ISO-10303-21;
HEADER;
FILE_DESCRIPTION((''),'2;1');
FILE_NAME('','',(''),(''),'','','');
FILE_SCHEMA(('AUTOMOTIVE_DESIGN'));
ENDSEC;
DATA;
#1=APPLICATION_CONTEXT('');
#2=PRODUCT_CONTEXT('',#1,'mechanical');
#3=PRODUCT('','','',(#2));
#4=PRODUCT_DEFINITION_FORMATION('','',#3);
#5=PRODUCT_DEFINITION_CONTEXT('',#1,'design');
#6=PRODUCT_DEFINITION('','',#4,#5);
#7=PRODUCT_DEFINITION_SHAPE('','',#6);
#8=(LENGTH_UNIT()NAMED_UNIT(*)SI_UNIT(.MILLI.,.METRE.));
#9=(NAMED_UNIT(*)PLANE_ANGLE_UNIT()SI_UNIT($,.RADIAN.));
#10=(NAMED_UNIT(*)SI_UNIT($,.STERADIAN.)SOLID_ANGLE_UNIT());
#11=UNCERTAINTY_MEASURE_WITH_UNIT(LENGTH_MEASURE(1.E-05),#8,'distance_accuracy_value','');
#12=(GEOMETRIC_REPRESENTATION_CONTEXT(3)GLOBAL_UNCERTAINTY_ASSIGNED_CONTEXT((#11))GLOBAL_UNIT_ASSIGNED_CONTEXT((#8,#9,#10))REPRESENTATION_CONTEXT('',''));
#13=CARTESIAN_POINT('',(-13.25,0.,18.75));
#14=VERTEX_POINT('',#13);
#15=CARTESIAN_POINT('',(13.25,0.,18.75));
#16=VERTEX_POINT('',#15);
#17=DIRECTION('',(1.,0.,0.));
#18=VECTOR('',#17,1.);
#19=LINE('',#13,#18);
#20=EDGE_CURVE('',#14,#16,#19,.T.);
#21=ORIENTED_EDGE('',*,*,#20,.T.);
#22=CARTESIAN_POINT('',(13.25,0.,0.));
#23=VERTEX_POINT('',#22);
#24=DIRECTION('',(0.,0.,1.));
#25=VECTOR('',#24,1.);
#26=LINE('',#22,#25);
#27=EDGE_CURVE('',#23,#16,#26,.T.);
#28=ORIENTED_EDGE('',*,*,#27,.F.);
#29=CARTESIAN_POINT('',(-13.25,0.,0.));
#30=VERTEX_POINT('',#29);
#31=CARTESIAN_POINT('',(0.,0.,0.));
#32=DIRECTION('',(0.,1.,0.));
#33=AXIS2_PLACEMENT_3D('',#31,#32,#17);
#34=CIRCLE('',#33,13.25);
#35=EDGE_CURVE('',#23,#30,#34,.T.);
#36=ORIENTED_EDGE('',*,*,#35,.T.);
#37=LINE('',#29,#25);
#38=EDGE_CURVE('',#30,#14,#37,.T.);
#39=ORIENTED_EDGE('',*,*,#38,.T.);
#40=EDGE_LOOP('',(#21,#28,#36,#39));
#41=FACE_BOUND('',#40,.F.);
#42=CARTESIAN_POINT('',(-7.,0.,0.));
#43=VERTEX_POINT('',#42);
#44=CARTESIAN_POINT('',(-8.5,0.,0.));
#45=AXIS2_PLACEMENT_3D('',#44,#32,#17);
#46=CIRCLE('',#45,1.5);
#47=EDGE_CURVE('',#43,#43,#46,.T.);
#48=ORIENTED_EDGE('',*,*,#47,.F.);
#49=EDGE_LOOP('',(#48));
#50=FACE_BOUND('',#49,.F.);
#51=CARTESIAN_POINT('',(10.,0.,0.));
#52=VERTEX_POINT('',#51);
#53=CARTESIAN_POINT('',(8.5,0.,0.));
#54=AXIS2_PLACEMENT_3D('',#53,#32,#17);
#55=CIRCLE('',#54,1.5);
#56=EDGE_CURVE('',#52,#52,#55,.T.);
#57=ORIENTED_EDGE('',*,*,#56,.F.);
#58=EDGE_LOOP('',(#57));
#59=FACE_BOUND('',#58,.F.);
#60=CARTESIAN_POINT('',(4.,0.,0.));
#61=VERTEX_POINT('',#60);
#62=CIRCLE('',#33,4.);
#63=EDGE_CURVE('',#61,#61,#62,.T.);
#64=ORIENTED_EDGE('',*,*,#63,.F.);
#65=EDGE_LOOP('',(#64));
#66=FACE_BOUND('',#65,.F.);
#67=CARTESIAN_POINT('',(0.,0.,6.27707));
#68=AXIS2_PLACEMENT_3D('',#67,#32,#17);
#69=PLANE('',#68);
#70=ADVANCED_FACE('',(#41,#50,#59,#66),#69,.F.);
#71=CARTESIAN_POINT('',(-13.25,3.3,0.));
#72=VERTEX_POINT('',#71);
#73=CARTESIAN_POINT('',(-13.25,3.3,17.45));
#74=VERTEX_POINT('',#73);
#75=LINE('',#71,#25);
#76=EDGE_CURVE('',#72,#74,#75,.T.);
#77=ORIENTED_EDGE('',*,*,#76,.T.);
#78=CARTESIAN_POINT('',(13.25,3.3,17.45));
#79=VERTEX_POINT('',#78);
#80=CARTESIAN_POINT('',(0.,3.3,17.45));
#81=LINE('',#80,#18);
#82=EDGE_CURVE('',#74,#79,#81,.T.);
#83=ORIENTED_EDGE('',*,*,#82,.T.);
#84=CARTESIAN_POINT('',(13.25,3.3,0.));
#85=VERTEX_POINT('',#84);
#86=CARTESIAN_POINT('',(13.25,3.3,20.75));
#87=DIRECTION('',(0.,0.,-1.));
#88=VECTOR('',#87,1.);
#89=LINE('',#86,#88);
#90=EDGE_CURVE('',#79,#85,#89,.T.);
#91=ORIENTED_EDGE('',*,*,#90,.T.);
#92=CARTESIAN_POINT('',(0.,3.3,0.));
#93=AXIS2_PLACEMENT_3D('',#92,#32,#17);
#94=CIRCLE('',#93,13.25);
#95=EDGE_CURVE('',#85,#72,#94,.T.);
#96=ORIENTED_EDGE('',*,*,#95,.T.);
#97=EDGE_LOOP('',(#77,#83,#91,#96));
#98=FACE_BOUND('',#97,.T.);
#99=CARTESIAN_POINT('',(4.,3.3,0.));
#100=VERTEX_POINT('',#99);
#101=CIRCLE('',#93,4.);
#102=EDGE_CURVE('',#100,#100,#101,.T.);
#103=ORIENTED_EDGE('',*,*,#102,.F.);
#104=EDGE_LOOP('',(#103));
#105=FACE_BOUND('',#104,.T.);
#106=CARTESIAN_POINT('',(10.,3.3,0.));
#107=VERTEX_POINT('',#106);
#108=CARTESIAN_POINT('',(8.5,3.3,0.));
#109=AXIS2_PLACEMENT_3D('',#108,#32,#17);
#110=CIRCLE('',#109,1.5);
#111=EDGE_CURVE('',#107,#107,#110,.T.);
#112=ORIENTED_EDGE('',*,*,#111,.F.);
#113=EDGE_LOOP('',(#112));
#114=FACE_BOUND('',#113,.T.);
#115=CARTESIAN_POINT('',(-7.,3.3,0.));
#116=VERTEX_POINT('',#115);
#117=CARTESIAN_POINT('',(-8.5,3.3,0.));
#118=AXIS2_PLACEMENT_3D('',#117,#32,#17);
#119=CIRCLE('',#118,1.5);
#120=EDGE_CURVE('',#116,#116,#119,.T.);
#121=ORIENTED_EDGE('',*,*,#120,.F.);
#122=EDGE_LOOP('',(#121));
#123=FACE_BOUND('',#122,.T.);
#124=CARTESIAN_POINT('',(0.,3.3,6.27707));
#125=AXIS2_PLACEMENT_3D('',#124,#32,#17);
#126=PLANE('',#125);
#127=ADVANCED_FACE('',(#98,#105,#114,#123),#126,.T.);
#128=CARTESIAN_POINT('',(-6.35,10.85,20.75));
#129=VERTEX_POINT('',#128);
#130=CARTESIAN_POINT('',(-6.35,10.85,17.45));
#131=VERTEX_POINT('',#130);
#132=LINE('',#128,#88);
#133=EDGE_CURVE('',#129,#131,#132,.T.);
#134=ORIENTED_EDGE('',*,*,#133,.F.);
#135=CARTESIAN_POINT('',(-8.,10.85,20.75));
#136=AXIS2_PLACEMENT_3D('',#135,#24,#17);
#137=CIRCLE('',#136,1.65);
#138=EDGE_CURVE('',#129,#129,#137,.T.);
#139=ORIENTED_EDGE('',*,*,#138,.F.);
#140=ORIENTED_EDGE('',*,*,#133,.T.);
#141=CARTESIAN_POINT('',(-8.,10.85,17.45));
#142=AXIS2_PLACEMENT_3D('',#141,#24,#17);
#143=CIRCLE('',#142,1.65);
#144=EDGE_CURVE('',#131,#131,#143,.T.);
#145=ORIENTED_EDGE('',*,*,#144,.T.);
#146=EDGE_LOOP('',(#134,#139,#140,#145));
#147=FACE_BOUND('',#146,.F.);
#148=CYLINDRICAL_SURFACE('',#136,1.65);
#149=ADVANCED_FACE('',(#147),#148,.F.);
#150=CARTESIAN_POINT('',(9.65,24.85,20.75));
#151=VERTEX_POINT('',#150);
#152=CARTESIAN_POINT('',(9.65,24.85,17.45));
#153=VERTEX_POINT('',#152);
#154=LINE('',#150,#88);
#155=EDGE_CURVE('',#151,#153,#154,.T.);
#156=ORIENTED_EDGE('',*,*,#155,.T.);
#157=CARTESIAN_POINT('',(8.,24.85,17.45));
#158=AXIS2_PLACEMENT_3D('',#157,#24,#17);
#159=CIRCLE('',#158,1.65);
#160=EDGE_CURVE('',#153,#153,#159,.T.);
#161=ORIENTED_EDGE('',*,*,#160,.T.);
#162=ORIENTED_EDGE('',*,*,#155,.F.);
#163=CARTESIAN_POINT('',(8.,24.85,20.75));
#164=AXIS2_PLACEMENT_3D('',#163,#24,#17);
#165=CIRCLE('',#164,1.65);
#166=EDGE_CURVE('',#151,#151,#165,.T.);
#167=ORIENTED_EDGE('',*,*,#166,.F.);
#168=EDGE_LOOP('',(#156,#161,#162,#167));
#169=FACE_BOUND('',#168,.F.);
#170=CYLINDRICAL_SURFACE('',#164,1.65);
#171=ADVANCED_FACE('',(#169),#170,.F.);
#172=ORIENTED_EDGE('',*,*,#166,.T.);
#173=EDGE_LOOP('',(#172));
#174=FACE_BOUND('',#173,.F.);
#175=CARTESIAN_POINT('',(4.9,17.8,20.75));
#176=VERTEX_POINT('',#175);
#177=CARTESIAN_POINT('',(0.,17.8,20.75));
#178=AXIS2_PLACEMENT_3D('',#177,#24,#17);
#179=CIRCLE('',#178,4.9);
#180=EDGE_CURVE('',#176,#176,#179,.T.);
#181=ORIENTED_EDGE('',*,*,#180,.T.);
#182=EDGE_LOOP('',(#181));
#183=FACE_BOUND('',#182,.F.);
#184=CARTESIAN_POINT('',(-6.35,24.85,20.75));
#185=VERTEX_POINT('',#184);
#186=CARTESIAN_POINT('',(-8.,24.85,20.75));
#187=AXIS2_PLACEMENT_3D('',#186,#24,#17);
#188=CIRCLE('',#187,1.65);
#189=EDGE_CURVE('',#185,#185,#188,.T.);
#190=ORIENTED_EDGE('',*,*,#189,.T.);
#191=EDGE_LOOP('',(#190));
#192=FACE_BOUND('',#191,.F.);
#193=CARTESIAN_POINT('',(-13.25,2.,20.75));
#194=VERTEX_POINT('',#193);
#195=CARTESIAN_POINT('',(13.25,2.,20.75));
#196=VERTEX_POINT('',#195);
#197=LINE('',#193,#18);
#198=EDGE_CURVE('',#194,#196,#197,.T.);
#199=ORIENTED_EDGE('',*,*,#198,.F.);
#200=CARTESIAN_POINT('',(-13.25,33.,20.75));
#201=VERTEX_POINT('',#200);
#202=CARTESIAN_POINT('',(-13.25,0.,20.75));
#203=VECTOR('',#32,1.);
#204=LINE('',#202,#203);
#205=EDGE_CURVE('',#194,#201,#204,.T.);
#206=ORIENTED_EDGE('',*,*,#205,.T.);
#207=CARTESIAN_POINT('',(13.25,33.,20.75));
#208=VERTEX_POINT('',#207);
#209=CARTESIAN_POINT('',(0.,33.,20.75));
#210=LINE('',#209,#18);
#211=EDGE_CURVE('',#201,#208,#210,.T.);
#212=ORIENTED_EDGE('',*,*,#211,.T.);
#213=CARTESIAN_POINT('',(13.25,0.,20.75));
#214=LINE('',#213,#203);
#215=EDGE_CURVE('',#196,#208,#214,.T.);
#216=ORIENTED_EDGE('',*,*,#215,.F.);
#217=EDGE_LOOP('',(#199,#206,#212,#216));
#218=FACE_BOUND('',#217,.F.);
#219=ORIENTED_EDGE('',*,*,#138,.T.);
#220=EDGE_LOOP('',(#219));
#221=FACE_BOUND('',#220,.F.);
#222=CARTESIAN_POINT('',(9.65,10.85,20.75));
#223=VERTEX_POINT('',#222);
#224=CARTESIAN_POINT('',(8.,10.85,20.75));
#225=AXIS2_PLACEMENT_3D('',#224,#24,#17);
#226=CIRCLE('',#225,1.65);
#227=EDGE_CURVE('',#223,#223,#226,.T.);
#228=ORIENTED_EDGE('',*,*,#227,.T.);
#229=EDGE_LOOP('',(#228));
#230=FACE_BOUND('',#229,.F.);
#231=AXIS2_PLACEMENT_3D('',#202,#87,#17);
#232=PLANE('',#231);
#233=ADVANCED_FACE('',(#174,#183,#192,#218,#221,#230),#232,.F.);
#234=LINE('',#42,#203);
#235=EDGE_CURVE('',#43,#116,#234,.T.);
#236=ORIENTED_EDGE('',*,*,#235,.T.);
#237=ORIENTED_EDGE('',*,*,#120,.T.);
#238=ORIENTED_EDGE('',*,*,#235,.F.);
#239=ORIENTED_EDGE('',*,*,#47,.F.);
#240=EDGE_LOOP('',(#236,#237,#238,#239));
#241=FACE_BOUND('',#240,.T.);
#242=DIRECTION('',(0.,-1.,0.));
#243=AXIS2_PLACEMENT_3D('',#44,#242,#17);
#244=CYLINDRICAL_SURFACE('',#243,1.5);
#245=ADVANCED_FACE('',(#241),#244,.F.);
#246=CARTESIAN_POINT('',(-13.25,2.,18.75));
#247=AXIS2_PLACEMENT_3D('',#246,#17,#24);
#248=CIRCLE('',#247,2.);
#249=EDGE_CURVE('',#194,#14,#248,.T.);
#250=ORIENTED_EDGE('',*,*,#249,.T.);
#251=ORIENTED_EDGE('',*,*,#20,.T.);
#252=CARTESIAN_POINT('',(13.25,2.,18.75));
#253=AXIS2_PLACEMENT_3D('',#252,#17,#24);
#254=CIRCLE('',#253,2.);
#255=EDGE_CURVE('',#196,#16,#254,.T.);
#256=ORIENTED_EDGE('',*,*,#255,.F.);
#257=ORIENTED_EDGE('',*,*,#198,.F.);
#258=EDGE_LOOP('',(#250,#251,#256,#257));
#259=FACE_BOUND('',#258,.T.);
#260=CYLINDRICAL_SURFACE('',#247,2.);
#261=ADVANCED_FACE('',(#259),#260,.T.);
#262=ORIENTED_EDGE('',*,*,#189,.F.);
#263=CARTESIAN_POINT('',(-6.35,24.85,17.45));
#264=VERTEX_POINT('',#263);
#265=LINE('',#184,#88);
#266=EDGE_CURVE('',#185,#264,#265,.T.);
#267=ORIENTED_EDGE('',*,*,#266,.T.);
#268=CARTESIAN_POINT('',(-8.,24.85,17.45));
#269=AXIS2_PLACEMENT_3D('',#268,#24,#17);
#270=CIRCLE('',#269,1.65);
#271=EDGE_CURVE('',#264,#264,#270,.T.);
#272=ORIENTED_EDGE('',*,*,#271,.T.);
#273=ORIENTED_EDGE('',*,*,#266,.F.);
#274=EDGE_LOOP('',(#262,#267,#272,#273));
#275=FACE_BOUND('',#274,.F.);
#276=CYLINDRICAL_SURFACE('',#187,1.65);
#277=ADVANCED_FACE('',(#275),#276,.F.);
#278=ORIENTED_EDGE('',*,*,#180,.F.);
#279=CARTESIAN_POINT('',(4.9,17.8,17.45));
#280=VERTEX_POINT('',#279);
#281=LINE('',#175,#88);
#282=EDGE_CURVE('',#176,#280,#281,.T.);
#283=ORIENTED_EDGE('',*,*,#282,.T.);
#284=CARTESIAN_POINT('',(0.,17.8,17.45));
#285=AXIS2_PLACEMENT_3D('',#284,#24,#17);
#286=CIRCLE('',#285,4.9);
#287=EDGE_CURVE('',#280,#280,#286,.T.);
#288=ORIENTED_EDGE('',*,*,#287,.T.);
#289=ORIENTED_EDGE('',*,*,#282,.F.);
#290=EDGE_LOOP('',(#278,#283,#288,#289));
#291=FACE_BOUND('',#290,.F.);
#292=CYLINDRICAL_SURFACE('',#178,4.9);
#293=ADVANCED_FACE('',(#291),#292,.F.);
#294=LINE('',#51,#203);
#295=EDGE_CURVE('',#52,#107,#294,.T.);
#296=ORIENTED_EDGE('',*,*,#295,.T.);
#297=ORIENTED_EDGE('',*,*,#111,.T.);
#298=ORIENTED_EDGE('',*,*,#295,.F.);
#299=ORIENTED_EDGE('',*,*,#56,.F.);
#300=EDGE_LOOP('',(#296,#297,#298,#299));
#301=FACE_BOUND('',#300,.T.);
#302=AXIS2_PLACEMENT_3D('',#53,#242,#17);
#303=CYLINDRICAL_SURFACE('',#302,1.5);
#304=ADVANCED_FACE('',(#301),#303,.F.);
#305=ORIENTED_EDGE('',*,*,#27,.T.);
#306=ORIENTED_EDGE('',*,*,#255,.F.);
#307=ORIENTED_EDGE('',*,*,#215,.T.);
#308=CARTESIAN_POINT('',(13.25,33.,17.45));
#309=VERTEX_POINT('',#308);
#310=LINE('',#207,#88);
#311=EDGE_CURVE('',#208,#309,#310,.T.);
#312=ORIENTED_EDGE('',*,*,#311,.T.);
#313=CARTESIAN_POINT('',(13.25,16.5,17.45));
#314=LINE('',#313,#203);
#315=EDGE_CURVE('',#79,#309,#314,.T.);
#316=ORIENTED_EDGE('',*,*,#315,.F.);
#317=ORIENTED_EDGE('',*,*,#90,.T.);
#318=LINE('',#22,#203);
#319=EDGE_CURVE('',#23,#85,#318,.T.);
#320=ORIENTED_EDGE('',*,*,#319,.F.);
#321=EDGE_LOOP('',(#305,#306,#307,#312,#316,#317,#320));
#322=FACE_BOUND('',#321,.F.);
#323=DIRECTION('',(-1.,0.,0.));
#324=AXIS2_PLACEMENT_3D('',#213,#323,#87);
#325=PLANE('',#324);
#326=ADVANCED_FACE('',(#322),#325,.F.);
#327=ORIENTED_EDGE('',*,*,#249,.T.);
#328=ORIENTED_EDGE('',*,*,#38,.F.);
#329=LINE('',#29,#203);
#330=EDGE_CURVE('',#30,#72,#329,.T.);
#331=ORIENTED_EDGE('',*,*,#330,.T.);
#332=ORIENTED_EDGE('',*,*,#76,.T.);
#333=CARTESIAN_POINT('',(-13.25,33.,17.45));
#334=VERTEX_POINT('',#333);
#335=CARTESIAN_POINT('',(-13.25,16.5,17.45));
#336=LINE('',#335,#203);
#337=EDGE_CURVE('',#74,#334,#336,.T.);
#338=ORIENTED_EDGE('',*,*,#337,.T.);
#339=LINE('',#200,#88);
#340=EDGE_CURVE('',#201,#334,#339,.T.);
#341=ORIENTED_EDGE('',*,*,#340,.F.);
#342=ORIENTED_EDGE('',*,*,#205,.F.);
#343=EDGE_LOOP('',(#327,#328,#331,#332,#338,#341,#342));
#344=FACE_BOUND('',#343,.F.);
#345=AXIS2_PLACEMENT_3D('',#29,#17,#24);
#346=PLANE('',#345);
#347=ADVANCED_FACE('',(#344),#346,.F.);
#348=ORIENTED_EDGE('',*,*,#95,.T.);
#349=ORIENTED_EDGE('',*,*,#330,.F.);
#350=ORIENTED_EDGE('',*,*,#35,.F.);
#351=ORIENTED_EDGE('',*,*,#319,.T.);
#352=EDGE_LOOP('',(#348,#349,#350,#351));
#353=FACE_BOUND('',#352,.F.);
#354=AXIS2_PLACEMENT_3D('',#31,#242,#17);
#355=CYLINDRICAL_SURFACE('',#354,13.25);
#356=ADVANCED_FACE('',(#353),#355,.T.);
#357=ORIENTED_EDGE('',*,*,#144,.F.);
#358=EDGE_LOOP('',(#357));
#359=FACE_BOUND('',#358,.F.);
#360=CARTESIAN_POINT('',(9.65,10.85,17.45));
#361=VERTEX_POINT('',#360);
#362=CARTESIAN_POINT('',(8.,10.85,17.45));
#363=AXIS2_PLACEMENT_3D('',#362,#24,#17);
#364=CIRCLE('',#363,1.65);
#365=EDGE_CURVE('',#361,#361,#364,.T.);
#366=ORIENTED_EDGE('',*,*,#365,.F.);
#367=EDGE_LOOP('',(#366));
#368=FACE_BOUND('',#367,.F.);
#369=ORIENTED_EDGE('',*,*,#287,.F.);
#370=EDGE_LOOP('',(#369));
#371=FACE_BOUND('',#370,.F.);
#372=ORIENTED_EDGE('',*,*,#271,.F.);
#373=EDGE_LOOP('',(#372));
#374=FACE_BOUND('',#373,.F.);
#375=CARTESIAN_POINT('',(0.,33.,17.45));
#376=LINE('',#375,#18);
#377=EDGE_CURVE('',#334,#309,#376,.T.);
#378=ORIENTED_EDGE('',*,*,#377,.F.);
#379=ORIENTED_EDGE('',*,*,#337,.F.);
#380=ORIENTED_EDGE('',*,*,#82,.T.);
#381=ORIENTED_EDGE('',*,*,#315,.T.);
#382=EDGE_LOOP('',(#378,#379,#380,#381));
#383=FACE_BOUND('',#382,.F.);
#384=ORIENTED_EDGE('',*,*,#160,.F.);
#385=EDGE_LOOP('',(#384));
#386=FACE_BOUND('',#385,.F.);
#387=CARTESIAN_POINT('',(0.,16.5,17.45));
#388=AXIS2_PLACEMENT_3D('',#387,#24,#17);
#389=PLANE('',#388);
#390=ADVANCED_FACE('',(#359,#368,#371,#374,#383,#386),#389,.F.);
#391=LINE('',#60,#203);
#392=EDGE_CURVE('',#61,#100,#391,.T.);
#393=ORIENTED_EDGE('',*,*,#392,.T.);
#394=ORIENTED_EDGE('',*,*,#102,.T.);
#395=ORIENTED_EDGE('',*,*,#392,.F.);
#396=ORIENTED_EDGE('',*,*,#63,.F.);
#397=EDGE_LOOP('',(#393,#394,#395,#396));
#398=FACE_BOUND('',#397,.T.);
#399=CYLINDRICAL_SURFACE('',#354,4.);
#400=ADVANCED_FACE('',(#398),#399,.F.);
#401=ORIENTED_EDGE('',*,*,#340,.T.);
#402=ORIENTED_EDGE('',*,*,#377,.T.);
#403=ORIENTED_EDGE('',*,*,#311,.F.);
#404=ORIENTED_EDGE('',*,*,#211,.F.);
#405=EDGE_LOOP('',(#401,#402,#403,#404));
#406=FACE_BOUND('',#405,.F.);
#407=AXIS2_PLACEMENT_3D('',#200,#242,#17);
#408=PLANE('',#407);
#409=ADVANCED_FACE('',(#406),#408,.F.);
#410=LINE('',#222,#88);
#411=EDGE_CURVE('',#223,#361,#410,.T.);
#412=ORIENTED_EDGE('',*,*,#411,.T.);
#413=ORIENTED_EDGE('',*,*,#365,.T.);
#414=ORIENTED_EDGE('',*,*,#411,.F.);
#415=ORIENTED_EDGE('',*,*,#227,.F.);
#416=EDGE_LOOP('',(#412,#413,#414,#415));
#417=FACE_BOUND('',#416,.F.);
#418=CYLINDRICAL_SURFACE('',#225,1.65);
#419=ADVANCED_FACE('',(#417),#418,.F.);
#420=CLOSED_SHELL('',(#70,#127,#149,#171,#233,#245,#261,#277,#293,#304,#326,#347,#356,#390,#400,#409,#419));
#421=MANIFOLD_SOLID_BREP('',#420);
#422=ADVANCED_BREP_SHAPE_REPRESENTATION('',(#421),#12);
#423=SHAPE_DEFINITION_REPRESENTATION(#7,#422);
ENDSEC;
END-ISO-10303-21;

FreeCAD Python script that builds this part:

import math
import FreeCAD as App
import Part
import Sketcher


def edges_at(feature, points):
    """Names of the edges that pass closest to the given points."""
    edges = feature.Shape.Edges
    near = lambda p: min(range(len(edges)), key=lambda i: edges[i].distToShape(Part.Vertex(*p))[0])
    return sorted({f"Edge{near(p) + 1}" for p in points})

doc = App.newDocument("Part")
params = doc.addObject("Spreadsheet::Sheet", "Params")
for row, (alias, value) in enumerate([
    ("sketch1_diameter", "3 mm"),
    ("sketch1_diameter2", "8 mm"),
    ("sketch1_radius", "13.25 mm"),
    ("sketch1_height", "20.75 mm"),
    ("pad1_length", "3.3 mm"),
    ("sketch2_diameter", "3.3 mm"),
    ("sketch2_diameter2", "9.8 mm"),
    ("sketch2_height", "33 mm"),
    ("sketch2_width", "26.5 mm"),
    ("pad2_length", "3.3 mm"),
    ("fillet_radius", "2 mm"),
], start=1):
    params.set(f"A{row}", alias)
    params.set(f"B{row}", "=" + value)
    params.setAlias(f"B{row}", alias)

body = doc.addObject("PartDesign::Body", "Body")

# Sketch on XZ plane
sketch1 = body.newObject("Sketcher::SketchObject", "Sketch")
sketch1.AttachmentSupport = (doc.getObject("XZ_Plane"), [""])
sketch1.MapMode = "FlatFace"
sketch1.addGeometry(Part.LineSegment(App.Vector(-13.25, 0, 0), App.Vector(-13.25, 20.75, 0)), False)
sketch1.addGeometry(Part.LineSegment(App.Vector(-13.25, 20.75, 0), App.Vector(13.25, 20.75, 0)), False)
sketch1.addGeometry(Part.LineSegment(App.Vector(13.25, 20.75, 0), App.Vector(13.25, 0, 0)), False)
sketch1.addGeometry(Part.ArcOfCircle(Part.Circle(App.Vector(0, 0, 0), App.Vector(0, 0, 1), 13.25), math.radians(180), math.radians(360)), False)
sketch1.addGeometry(Part.Circle(App.Vector(-8.5, 0, 0), App.Vector(0, 0, 1), 1.5), False)
sketch1.addGeometry(Part.Circle(App.Vector(0, 0, 0), App.Vector(0, 0, 1), 4), False)
sketch1.addGeometry(Part.Circle(App.Vector(8.5, 0, 0), App.Vector(0, 0, 1), 1.5), False)
sketch1.addConstraint(Sketcher.Constraint("Coincident", 0, 2, 1, 1))
sketch1.addConstraint(Sketcher.Constraint("Coincident", 1, 2, 2, 1))
sketch1.addConstraint(Sketcher.Constraint("Tangent", 2, 2, 3, 2))
sketch1.addConstraint(Sketcher.Constraint("Tangent", 3, 1, 0, 1))
sketch1.addConstraint(Sketcher.Constraint("Vertical", 0))
sketch1.addConstraint(Sketcher.Constraint("Horizontal", 1))
sketch1.addConstraint(Sketcher.Constraint("Vertical", 2))
sketch1.addConstraint(Sketcher.Constraint("Coincident", 3, 3, -1, 1))
sketch1.addConstraint(Sketcher.Constraint("Coincident", 5, 3, -1, 1))
sketch1.addConstraint(Sketcher.Constraint("Equal", 4, 6))
sketch1.addConstraint(Sketcher.Constraint("Symmetric", 4, 3, 6, 3, -1, 1))
sketch1.addConstraint(Sketcher.Constraint("PointOnObject", 4, 3, -1))
sketch1.addConstraint(Sketcher.Constraint("Diameter", 4, 3.0))
sketch1.addConstraint(Sketcher.Constraint("Diameter", 5, 8.0))
sketch1.addConstraint(Sketcher.Constraint("Radius", 3, 13.25))
sketch1.addConstraint(Sketcher.Constraint("DistanceX", 4, 3, 6, 3, 17.0))
sketch1.addConstraint(Sketcher.Constraint("DistanceY", 0, 1, 0, 2, 20.75))
sketch1.setExpression("Constraints[12]", "Params.sketch1_diameter")
sketch1.setExpression("Constraints[13]", "Params.sketch1_diameter2")
sketch1.setExpression("Constraints[14]", "Params.sketch1_radius")
sketch1.setExpression("Constraints[16]", "Params.sketch1_height")
pad1 = body.newObject("PartDesign::Pad", "Pad")
pad1.Profile = sketch1
pad1.setExpression("Length", "Params.pad1_length")
pad1.Reversed = True

# Sketch on XY plane
sketch2 = body.newObject("Sketcher::SketchObject", "Sketch001")
sketch2.AttachmentSupport = (doc.getObject("XY_Plane"), [""])
sketch2.MapMode = "FlatFace"
sketch2.AttachmentOffset = App.Placement(App.Vector(0, 0, 20.75), App.Rotation())
sketch2.addGeometry(Part.LineSegment(App.Vector(-13.25, 33, 0), App.Vector(-13.25, 0, 0)), False)
sketch2.addGeometry(Part.LineSegment(App.Vector(-13.25, 0, 0), App.Vector(13.25, 0, 0)), False)
sketch2.addGeometry(Part.LineSegment(App.Vector(13.25, 0, 0), App.Vector(13.25, 33, 0)), False)
sketch2.addGeometry(Part.LineSegment(App.Vector(13.25, 33, 0), App.Vector(-13.25, 33, 0)), False)
sketch2.addGeometry(Part.Circle(App.Vector(-8, 10.85, 0), App.Vector(0, 0, 1), 1.65), False)
sketch2.addGeometry(Part.Circle(App.Vector(8, 10.85, 0), App.Vector(0, 0, 1), 1.65), False)
sketch2.addGeometry(Part.Circle(App.Vector(0, 17.8, 0), App.Vector(0, 0, 1), 4.9), False)
sketch2.addGeometry(Part.Circle(App.Vector(-8, 24.85, 0), App.Vector(0, 0, 1), 1.65), False)
sketch2.addGeometry(Part.Circle(App.Vector(8, 24.85, 0), App.Vector(0, 0, 1), 1.65), False)
sketch2.addConstraint(Sketcher.Constraint("Coincident", 0, 2, 1, 1))
sketch2.addConstraint(Sketcher.Constraint("Coincident", 1, 2, 2, 1))
sketch2.addConstraint(Sketcher.Constraint("Coincident", 2, 2, 3, 1))
sketch2.addConstraint(Sketcher.Constraint("Coincident", 3, 2, 0, 1))
sketch2.addConstraint(Sketcher.Constraint("Vertical", 0))
sketch2.addConstraint(Sketcher.Constraint("Horizontal", 1))
sketch2.addConstraint(Sketcher.Constraint("Vertical", 2))
sketch2.addConstraint(Sketcher.Constraint("Horizontal", 3))
sketch2.addConstraint(Sketcher.Constraint("Equal", 4, 5))
sketch2.addConstraint(Sketcher.Constraint("Equal", 5, 7))
sketch2.addConstraint(Sketcher.Constraint("Equal", 7, 8))
sketch2.addConstraint(Sketcher.Constraint("Symmetric", 0, 2, 1, 2, -1, 1))
sketch2.addConstraint(Sketcher.Constraint("Symmetric", 4, 3, 5, 3, -2))
sketch2.addConstraint(Sketcher.Constraint("Symmetric", 7, 3, 8, 3, -2))
sketch2.addConstraint(Sketcher.Constraint("PointOnObject", 6, 3, -2))
sketch2.addConstraint(Sketcher.Constraint("Vertical", 4, 3, 7, 3))
sketch2.addConstraint(Sketcher.Constraint("Diameter", 4, 3.3))
sketch2.addConstraint(Sketcher.Constraint("Diameter", 6, 9.8))
sketch2.addConstraint(Sketcher.Constraint("DistanceY", 0, 2, 0, 1, 33.0))
sketch2.addConstraint(Sketcher.Constraint("DistanceX", 1, 1, 1, 2, 26.5))
sketch2.addConstraint(Sketcher.Constraint("DistanceX", 4, 3, -1, 1, 8.0))
sketch2.addConstraint(Sketcher.Constraint("DistanceY", 4, 3, 7, 3, 14.0))
sketch2.addConstraint(Sketcher.Constraint("DistanceY", -1, 1, 6, 3, 17.8))
sketch2.addConstraint(Sketcher.Constraint("DistanceY", -1, 1, 4, 3, 10.85))
sketch2.setExpression("Constraints[16]", "Params.sketch2_diameter")
sketch2.setExpression("Constraints[17]", "Params.sketch2_diameter2")
sketch2.setExpression("Constraints[18]", "Params.sketch2_height")
sketch2.setExpression("Constraints[19]", "Params.sketch2_width")
pad2 = body.newObject("PartDesign::Pad", "Pad001")
pad2.Profile = sketch2
pad2.setExpression("Length", "Params.pad2_length")
pad2.Reversed = True
doc.recompute()

fillet = body.newObject("PartDesign::Fillet", "Fillet")
fillet.Base = (pad2, edges_at(pad2, [(0, 0, 20.75)]))
fillet.setExpression("Radius", "Params.fillet_radius")

doc.recompute()
